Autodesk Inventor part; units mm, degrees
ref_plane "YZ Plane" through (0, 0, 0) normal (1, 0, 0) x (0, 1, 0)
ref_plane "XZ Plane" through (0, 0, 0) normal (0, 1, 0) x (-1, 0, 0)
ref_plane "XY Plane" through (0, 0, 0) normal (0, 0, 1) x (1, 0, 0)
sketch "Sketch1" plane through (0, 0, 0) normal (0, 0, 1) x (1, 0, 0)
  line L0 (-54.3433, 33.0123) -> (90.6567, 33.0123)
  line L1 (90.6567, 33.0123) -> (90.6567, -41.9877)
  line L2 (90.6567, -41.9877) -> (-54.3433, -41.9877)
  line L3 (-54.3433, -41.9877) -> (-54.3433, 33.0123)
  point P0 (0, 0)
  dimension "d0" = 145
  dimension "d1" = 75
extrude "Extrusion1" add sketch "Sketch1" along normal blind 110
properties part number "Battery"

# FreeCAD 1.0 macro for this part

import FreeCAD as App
import Part
import Sketcher

doc = App.newDocument("Part")
body = doc.addObject("PartDesign::Body", "Body")

sketch1 = body.newObject("Sketcher::SketchObject", "Sketch")
sketch1.AttachmentSupport = (doc.getObject("XY_Plane"), [""])
sketch1.MapMode = "FlatFace"
sketch1.addGeometry([
    Part.LineSegment(App.Vector(90.6567, 33.0123, 0), App.Vector(-54.3433, 33.0123, 0)),
    Part.LineSegment(App.Vector(-54.3433, 33.0123, 0), App.Vector(-54.3433, -41.9877, 0)),
    Part.LineSegment(App.Vector(-54.3433, -41.9877, 0), App.Vector(90.6567, -41.9877, 0)),
    Part.LineSegment(App.Vector(90.6567, -41.9877, 0), App.Vector(90.6567, 33.0123, 0)),
], False)
sketch1.addConstraint([
    Sketcher.Constraint("Coincident", 0, 2, 1, 1),
    Sketcher.Constraint("Coincident", 1, 2, 2, 1),
    Sketcher.Constraint("Coincident", 2, 2, 3, 1),
    Sketcher.Constraint("Coincident", 3, 2, 0, 1),
    Sketcher.Constraint("Horizontal", 0),
    Sketcher.Constraint("Vertical", 1),
    Sketcher.Constraint("Horizontal", 2),
    Sketcher.Constraint("Vertical", 3),
    Sketcher.Constraint("DistanceX", 0, 2, 0, 1, 145.0),
    Sketcher.Constraint("DistanceY", 1, 2, 1, 1, 75.0),
    Sketcher.Constraint("DistanceX", 0, 2, -1, 1, 54.3433),
    Sketcher.Constraint("DistanceY", -1, 1, 0, 2, 33.0123),
])
pad1 = body.newObject("PartDesign::Pad", "Pad")
pad1.Profile = sketch1
pad1.Length = 110

doc.recompute()
